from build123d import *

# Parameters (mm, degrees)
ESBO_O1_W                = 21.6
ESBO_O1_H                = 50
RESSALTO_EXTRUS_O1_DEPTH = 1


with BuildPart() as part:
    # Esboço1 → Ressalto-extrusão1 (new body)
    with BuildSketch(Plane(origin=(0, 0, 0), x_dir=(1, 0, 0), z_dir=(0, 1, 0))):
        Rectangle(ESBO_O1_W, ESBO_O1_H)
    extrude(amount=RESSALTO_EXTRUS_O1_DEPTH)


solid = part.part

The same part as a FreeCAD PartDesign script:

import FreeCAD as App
import Part
import Sketcher


def add_polygon(sketch, points):
    """Adds a closed chain of lines whose ends are joined by coincident constraints."""
    first, n = sketch.GeometryCount, len(points)
    for a, b in zip(points, points[1:] + points[:1]):
        sketch.addGeometry(Part.LineSegment(App.Vector(*a, 0), App.Vector(*b, 0)), False)
    for i in range(n):
        sketch.addConstraint(Sketcher.Constraint("Coincident", first + i, 2, first + (i + 1) % n, 1))

doc = App.newDocument("Part")
body = doc.addObject("PartDesign::Body", "Body")

# Sketch on XZ plane
sketch1 = body.newObject("Sketcher::SketchObject", "Sketch")
sketch1.AttachmentSupport = (doc.getObject("XZ_Plane"), [""])
sketch1.MapMode = "FlatFace"
add_polygon(sketch1, [(-10.8, -25), (-10.8, 25), (10.8, 25), (10.8, -25)])  # lines 0-3
sketch1.addConstraint([
    Sketcher.Constraint("Vertical", 0),
    Sketcher.Constraint("Horizontal", 1),
    Sketcher.Constraint("Vertical", 2),
    Sketcher.Constraint("Horizontal", 3),
    Sketcher.Constraint("Symmetric", 0, 2, 2, 2, -1, 1),
    Sketcher.Constraint("DistanceY", 0, 1, 0, 2, 50.0),
    Sketcher.Constraint("DistanceX", 1, 1, 1, 2, 21.6),
])
pad1 = body.newObject("PartDesign::Pad", "Pad")
pad1.Profile = sketch1
pad1.Length = 1
pad1.Reversed = True

doc.recompute()
